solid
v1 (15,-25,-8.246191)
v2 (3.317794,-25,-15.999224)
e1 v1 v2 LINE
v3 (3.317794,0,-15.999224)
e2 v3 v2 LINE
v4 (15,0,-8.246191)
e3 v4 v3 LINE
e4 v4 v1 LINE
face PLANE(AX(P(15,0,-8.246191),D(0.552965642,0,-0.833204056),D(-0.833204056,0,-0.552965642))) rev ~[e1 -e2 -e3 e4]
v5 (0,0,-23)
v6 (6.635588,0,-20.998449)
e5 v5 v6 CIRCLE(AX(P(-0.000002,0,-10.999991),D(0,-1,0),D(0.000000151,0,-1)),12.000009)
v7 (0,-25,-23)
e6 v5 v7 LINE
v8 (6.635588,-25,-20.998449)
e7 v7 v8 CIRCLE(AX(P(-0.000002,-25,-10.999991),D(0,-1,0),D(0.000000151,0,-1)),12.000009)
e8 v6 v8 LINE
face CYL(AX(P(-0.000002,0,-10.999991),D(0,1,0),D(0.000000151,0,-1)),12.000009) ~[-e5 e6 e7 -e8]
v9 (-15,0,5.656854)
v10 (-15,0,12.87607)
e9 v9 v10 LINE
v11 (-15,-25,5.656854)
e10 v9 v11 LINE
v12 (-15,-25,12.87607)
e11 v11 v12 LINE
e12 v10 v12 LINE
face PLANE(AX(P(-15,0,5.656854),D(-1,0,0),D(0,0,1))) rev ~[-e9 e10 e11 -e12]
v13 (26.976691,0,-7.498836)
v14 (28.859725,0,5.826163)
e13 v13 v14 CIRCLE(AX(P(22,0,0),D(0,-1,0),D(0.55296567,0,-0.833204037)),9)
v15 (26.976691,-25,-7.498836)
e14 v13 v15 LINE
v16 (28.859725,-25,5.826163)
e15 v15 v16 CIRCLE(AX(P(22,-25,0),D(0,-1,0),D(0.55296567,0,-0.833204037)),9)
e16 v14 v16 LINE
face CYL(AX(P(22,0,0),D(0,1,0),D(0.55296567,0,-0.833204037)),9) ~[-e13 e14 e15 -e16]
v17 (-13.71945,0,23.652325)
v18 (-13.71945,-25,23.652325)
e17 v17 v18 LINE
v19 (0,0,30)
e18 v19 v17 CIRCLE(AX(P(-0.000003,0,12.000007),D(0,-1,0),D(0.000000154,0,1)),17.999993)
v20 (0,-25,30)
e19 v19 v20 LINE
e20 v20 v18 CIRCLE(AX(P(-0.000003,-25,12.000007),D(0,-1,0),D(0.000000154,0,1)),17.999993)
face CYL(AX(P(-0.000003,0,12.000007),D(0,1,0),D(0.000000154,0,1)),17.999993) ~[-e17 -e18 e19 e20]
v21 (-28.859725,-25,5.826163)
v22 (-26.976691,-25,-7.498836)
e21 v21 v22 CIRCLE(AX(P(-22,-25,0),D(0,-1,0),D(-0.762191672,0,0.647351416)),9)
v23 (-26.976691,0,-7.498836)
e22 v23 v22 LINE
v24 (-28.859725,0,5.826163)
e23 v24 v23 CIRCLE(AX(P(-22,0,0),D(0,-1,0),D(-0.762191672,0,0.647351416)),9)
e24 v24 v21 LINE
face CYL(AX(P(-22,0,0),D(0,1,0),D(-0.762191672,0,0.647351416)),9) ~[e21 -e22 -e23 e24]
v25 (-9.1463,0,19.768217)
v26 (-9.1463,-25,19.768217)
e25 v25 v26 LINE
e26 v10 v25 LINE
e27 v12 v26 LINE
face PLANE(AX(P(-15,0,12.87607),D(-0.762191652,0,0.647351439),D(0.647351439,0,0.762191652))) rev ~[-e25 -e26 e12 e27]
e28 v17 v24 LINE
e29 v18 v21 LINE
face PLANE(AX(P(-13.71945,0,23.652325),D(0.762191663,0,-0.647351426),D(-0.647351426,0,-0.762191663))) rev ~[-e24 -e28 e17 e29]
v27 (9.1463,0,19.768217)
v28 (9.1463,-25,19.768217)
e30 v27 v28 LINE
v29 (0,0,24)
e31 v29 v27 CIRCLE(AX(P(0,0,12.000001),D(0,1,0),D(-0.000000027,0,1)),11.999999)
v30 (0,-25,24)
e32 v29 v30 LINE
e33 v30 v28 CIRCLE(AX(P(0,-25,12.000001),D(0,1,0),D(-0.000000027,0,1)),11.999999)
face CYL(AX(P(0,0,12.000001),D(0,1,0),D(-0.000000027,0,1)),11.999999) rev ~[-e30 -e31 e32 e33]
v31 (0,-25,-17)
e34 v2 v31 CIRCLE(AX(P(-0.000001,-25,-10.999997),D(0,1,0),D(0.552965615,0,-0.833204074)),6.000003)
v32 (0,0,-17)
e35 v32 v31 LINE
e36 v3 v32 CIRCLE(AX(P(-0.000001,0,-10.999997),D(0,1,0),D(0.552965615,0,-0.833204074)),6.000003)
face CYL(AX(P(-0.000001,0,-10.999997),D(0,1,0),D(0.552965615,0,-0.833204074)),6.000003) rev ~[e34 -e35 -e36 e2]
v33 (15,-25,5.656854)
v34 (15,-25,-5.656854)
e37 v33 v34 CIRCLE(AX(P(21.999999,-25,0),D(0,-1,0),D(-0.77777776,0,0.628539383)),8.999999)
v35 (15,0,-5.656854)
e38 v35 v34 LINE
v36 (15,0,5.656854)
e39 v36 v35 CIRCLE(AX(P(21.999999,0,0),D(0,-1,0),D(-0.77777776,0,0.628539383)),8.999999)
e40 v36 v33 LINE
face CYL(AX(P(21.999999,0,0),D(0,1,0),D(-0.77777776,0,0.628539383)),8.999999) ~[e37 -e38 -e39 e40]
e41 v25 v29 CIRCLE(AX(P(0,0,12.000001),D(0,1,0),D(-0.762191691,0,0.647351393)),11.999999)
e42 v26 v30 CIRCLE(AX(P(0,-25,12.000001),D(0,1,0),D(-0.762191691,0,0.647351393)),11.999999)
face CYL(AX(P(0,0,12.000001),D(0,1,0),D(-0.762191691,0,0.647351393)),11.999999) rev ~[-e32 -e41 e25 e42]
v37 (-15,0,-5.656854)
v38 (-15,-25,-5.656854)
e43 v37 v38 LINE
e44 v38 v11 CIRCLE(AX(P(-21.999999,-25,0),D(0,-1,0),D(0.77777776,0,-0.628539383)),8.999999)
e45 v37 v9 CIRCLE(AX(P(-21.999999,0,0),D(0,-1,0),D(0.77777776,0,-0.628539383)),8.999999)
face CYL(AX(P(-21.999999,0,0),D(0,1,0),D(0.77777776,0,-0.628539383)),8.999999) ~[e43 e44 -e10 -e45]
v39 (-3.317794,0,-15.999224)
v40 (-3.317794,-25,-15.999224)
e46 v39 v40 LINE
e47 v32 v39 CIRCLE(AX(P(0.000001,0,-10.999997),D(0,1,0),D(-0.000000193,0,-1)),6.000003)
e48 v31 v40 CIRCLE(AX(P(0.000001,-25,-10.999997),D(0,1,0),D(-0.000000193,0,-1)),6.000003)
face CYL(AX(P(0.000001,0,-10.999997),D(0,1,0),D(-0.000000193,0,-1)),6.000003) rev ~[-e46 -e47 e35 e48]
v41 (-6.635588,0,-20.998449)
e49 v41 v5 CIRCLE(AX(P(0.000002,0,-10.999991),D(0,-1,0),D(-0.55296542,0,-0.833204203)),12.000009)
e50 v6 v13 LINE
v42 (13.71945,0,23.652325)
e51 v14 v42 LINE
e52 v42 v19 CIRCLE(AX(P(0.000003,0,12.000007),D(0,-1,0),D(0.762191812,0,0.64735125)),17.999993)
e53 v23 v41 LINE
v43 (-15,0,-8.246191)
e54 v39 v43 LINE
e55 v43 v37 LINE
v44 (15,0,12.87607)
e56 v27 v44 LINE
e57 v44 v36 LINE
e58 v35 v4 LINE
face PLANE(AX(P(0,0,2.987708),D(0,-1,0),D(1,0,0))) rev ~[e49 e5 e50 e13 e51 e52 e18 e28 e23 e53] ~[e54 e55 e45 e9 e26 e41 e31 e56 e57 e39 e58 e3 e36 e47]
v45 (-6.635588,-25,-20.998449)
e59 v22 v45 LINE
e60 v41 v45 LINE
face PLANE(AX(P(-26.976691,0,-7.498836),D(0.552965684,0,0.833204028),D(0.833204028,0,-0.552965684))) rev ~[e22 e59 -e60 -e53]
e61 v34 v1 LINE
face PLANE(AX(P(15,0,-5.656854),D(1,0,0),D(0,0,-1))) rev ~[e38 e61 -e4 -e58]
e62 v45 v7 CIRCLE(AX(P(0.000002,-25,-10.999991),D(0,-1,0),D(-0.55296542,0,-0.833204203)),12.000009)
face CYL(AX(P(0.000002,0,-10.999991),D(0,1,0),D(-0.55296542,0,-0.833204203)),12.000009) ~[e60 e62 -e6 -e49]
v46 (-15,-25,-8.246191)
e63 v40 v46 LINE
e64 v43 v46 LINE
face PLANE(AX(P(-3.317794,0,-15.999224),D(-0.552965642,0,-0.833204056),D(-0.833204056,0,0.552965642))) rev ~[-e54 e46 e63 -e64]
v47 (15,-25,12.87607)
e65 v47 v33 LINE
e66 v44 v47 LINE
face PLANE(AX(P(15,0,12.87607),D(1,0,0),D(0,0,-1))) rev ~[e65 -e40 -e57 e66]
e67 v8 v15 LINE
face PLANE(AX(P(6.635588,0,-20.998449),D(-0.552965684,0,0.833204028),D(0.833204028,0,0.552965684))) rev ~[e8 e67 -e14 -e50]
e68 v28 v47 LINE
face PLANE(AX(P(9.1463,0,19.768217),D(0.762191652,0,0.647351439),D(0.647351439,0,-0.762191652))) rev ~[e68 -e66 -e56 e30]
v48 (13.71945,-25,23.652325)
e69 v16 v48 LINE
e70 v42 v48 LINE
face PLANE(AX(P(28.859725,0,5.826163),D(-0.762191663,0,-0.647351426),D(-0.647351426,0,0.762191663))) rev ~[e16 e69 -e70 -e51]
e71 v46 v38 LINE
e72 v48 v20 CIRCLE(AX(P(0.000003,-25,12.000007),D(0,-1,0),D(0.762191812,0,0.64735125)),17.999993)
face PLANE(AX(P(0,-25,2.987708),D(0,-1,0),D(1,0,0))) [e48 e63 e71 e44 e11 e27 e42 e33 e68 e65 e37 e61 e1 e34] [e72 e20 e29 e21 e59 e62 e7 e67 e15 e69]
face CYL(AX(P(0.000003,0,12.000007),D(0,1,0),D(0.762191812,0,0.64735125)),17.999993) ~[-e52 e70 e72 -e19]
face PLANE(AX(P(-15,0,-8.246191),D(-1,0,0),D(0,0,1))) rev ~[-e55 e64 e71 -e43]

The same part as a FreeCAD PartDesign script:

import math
import FreeCAD as App
import Part
import Sketcher
from FreeCAD import Vector
Q = App.Units.Quantity

doc = App.newDocument("Part")
body = doc.addObject("PartDesign::Body", "Body")

# Sketch on XZ plane
sketch1 = doc.addObject("Sketcher::SketchObject", "Sketch")
body.addObject(sketch1)
sketch1.AttachmentSupport = (doc.XZ_Plane, [""])
sketch1.MapMode = "FlatFace"
sketch1.addGeometry([
    Part.LineSegment(Vector(28.9, 5.8, 0), Vector(13.7, 23.7, 0)),  # 0
    Part.ArcOfCircle(Part.Circle(Vector(0, 12, 0), Vector(0, 0, 1), 18), math.radians(40), math.radians(90)),  # 1
    Part.ArcOfCircle(Part.Circle(Vector(0, 12, 0), Vector(0, 0, 1), 18), math.radians(90), math.radians(140)),  # 2
    Part.LineSegment(Vector(-13.7, 23.7, 0), Vector(-28.9, 5.8, 0)),  # 3
    Part.ArcOfCircle(Part.Circle(Vector(-22, 0, 0), Vector(0, 0, 1), 9), math.radians(140), math.radians(236)),  # 4
    Part.LineSegment(Vector(-27, -7.5, 0), Vector(-6.6, -21, 0)),  # 5
    Part.ArcOfCircle(Part.Circle(Vector(0, -11, 0), Vector(0, 0, 1), 12), math.radians(-124), math.radians(-90)),  # 6
    Part.ArcOfCircle(Part.Circle(Vector(0, -11, 0), Vector(0, 0, 1), 12), math.radians(-90), math.radians(-56)),  # 7
    Part.LineSegment(Vector(6.6, -21, 0), Vector(27, -7.5, 0)),  # 8
    Part.ArcOfCircle(Part.Circle(Vector(22, 0, 0), Vector(0, 0, 1), 9), math.radians(-56), math.radians(40)),  # 9
    Part.LineSegment(Vector(9.1, 19.8, 0), Vector(15, 12.9, 0)),  # 10
    Part.LineSegment(Vector(15, 12.9, 0), Vector(15, 5.7, 0)),  # 11
    Part.ArcOfCircle(Part.Circle(Vector(22, 0, 0), Vector(0, 0, 1), 9), math.radians(141), math.radians(219)),  # 12
    Part.LineSegment(Vector(15, -5.7, 0), Vector(15, -8.2, 0)),  # 13
    Part.LineSegment(Vector(15, -8.2, 0), Vector(3.3, -16, 0)),  # 14
    Part.ArcOfCircle(Part.Circle(Vector(0, -11, 0), Vector(0, 0, 1), 6), math.radians(-90), math.radians(-56)),  # 15
    Part.ArcOfCircle(Part.Circle(Vector(0, -11, 0), Vector(0, 0, 1), 6), math.radians(-124), math.radians(-90)),  # 16
    Part.LineSegment(Vector(-3.3, -16, 0), Vector(-15, -8.2, 0)),  # 17
    Part.LineSegment(Vector(-15, -8.2, 0), Vector(-15, -5.7, 0)),  # 18
    Part.ArcOfCircle(Part.Circle(Vector(-22, 0, 0), Vector(0, 0, 1), 9), math.radians(-39), math.radians(39)),  # 19
    Part.LineSegment(Vector(-15, 5.7, 0), Vector(-15, 12.9, 0)),  # 20
    Part.LineSegment(Vector(-15, 12.9, 0), Vector(-9.1, 19.8, 0)),  # 21
    Part.ArcOfCircle(Part.Circle(Vector(0, 12, 0), Vector(0, 0, 1), 12), math.radians(90), math.radians(140)),  # 22
    Part.ArcOfCircle(Part.Circle(Vector(0, 12, 0), Vector(0, 0, 1), 12), math.radians(40), math.radians(90)),  # 23
], False)
sketch1.addConstraint([
    Sketcher.Constraint("Tangent", 0, 2, 1, 1),
    Sketcher.Constraint("Tangent", 1, 2, 2, 1),
    Sketcher.Constraint("Tangent", 2, 2, 3, 1),
    Sketcher.Constraint("Tangent", 3, 2, 4, 1),
    Sketcher.Constraint("Tangent", 4, 2, 5, 1),
    Sketcher.Constraint("Tangent", 5, 2, 6, 1),
    Sketcher.Constraint("Tangent", 6, 2, 7, 1),
    Sketcher.Constraint("Tangent", 7, 2, 8, 1),
    Sketcher.Constraint("Tangent", 8, 2, 9, 1),
    Sketcher.Constraint("Tangent", 9, 2, 0, 1),
    Sketcher.Constraint("Coincident", 10, 2, 11, 1),
    Sketcher.Constraint("Coincident", 11, 2, 12, 1),
    Sketcher.Constraint("Coincident", 12, 2, 13, 1),
    Sketcher.Constraint("Coincident", 13, 2, 14, 1),
    Sketcher.Constraint("Tangent", 14, 2, 15, 2),
    Sketcher.Constraint("Tangent", 15, 1, 16, 2),
    Sketcher.Constraint("Tangent", 16, 1, 17, 1),
    Sketcher.Constraint("Coincident", 17, 2, 18, 1),
    Sketcher.Constraint("Coincident", 18, 2, 19, 1),
    Sketcher.Constraint("Coincident", 19, 2, 20, 1),
    Sketcher.Constraint("Coincident", 20, 2, 21, 1),
    Sketcher.Constraint("Tangent", 21, 2, 22, 2),
    Sketcher.Constraint("Tangent", 22, 1, 23, 2),
    Sketcher.Constraint("Tangent", 23, 1, 10, 1),
    Sketcher.Constraint("Vertical", 11),
    Sketcher.Constraint("Vertical", 13),
    Sketcher.Constraint("Vertical", 18),
    Sketcher.Constraint("Vertical", 20),
    Sketcher.Constraint("Coincident", 12, 3, 9, 3),
    Sketcher.Constraint("Coincident", 15, 3, 6, 3),
    Sketcher.Constraint("Coincident", 19, 3, 4, 3),
    Sketcher.Constraint("Coincident", 22, 3, 1, 3),
    Sketcher.Constraint("Equal", 1, 2),
    Sketcher.Constraint("Equal", 6, 7),
    Sketcher.Constraint("Equal", 4, 9),
    Sketcher.Constraint("Equal", 9, 12),
    Sketcher.Constraint("Equal", 15, 16),
    Sketcher.Constraint("Equal", 12, 19),
    Sketcher.Constraint("Equal", 22, 23),
    Sketcher.Constraint("Symmetric", 4, 3, 9, 3, -1, 1),
    Sketcher.Constraint("Symmetric", 0, 2, 2, 2, -2),
    Sketcher.Constraint("Symmetric", 14, 2, 16, 1, -2),
    Sketcher.Constraint("Symmetric", 10, 2, 20, 2, -2),
    Sketcher.Constraint("PointOnObject", 1, 2, -2),
    Sketcher.Constraint("PointOnObject", 6, 2, -2),
    Sketcher.Constraint("PointOnObject", 15, 1, -2),
    Sketcher.Constraint("PointOnObject", 22, 1, -2),
    Sketcher.Constraint("Parallel", 0, 10),
    Sketcher.Constraint("Parallel", 8, 14),
    Sketcher.Constraint("Horizontal", 13, 2, 17, 2),
    Sketcher.Constraint("Vertical", 11, 2, 12, 2),
    Sketcher.Constraint("Radius", 4, Q("9 mm")),
    Sketcher.Constraint("Radius", 22, Q("11.999999 mm")),
    Sketcher.Constraint("DistanceX", 4, 3, -1, 1, Q("22 mm")),
    Sketcher.Constraint("DistanceY", -1, 1, 22, 3, Q("12.000001 mm")),
    Sketcher.Constraint("DistanceY", -1, 1, 1, 2, Q("30 mm")),
    Sketcher.Constraint("DistanceY", 6, 2, -1, 1, Q("23 mm")),
    Sketcher.Constraint("DistanceX", -1, 1, 10, 2, Q("15 mm")),
    Sketcher.Constraint("DistanceY", 15, 1, -1, 1, Q("17 mm")),
    Sketcher.Constraint("DistanceY", 6, 3, 1, 3, Q("22.999998 mm")),
])
pad1 = doc.addObject("PartDesign::Pad", "Pad")
body.addObject(pad1)
pad1.Profile = sketch1
pad1.Length = 25

doc.recompute()
